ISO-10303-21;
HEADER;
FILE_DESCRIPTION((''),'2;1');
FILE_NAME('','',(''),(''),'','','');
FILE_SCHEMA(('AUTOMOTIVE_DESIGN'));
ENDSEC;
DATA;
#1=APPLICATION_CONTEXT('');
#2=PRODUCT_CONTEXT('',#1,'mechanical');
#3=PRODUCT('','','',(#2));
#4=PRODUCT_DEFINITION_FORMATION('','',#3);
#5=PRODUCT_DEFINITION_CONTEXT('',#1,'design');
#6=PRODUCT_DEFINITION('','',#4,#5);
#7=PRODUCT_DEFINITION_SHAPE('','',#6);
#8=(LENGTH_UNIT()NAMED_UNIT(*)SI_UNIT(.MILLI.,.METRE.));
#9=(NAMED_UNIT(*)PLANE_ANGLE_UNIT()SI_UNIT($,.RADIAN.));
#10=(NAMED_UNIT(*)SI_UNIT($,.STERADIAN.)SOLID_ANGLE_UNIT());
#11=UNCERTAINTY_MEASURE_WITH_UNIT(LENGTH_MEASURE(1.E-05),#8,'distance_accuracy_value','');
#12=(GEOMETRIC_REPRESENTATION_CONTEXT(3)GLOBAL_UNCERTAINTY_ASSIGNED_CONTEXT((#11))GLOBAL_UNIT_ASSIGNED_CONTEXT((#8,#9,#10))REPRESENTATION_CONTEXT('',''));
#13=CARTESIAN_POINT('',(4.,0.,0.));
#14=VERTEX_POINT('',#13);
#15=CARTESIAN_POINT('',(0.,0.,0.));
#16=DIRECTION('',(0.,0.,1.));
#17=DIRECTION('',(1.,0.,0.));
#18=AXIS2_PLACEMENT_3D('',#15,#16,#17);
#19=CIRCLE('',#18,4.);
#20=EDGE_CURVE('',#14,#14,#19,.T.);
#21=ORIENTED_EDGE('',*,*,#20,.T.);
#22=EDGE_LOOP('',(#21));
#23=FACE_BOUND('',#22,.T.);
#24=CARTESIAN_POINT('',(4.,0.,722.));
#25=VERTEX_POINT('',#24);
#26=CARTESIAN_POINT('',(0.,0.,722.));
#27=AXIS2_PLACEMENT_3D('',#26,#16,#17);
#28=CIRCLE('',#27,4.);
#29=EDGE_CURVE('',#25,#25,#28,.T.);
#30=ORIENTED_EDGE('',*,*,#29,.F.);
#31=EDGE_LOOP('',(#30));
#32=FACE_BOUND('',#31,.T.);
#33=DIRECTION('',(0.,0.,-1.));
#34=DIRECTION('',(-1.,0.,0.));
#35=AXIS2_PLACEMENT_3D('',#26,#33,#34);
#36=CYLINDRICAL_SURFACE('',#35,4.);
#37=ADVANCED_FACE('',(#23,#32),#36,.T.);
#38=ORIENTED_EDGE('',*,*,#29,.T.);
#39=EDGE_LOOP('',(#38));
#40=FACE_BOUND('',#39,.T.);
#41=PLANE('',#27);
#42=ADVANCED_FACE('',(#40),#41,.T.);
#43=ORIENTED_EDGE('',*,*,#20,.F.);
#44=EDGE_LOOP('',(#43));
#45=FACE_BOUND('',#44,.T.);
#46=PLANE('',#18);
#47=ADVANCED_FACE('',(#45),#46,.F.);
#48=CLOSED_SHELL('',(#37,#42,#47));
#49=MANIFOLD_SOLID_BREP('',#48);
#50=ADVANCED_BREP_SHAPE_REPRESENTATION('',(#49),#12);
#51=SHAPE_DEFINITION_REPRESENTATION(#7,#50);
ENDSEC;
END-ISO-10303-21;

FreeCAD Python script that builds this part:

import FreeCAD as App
import Part
import Sketcher

V = App.Vector
Q = App.Units.Quantity

doc = App.newDocument("Part")
params = doc.addObject("Spreadsheet::Sheet", "Params")
for row, (alias, value) in enumerate([
    ("sketch1_diameter", "8 mm"),
    ("pad1_length", "722 mm"),
], start=1):
    params.set(f"A{row}", alias)
    params.set(f"B{row}", "=" + value)
    params.setAlias(f"B{row}", alias)

body = doc.addObject("PartDesign::Body", "Body")

# Sketch on XY plane
sketch1 = doc.addObject("Sketcher::SketchObject", "Sketch")
body.addObject(sketch1)
sketch1.AttachmentSupport = (doc.XY_Plane, [""])
sketch1.MapMode = "FlatFace"
sketch1.addGeometry(Part.Circle(V(0, 0, 0), V(0, 0, 1), 4), False)
sketch1.addConstraint([
    Sketcher.Constraint("Coincident", 0, 3, -1, 1),
    Sketcher.Constraint("Diameter", 0, Q("8 mm")),
])
sketch1.setExpression("Constraints[1]", "Params.sketch1_diameter")
pad1 = doc.addObject("PartDesign::Pad", "Pad")
body.addObject(pad1)
pad1.Profile = sketch1
pad1.setExpression("Length", "Params.pad1_length")

doc.recompute()
